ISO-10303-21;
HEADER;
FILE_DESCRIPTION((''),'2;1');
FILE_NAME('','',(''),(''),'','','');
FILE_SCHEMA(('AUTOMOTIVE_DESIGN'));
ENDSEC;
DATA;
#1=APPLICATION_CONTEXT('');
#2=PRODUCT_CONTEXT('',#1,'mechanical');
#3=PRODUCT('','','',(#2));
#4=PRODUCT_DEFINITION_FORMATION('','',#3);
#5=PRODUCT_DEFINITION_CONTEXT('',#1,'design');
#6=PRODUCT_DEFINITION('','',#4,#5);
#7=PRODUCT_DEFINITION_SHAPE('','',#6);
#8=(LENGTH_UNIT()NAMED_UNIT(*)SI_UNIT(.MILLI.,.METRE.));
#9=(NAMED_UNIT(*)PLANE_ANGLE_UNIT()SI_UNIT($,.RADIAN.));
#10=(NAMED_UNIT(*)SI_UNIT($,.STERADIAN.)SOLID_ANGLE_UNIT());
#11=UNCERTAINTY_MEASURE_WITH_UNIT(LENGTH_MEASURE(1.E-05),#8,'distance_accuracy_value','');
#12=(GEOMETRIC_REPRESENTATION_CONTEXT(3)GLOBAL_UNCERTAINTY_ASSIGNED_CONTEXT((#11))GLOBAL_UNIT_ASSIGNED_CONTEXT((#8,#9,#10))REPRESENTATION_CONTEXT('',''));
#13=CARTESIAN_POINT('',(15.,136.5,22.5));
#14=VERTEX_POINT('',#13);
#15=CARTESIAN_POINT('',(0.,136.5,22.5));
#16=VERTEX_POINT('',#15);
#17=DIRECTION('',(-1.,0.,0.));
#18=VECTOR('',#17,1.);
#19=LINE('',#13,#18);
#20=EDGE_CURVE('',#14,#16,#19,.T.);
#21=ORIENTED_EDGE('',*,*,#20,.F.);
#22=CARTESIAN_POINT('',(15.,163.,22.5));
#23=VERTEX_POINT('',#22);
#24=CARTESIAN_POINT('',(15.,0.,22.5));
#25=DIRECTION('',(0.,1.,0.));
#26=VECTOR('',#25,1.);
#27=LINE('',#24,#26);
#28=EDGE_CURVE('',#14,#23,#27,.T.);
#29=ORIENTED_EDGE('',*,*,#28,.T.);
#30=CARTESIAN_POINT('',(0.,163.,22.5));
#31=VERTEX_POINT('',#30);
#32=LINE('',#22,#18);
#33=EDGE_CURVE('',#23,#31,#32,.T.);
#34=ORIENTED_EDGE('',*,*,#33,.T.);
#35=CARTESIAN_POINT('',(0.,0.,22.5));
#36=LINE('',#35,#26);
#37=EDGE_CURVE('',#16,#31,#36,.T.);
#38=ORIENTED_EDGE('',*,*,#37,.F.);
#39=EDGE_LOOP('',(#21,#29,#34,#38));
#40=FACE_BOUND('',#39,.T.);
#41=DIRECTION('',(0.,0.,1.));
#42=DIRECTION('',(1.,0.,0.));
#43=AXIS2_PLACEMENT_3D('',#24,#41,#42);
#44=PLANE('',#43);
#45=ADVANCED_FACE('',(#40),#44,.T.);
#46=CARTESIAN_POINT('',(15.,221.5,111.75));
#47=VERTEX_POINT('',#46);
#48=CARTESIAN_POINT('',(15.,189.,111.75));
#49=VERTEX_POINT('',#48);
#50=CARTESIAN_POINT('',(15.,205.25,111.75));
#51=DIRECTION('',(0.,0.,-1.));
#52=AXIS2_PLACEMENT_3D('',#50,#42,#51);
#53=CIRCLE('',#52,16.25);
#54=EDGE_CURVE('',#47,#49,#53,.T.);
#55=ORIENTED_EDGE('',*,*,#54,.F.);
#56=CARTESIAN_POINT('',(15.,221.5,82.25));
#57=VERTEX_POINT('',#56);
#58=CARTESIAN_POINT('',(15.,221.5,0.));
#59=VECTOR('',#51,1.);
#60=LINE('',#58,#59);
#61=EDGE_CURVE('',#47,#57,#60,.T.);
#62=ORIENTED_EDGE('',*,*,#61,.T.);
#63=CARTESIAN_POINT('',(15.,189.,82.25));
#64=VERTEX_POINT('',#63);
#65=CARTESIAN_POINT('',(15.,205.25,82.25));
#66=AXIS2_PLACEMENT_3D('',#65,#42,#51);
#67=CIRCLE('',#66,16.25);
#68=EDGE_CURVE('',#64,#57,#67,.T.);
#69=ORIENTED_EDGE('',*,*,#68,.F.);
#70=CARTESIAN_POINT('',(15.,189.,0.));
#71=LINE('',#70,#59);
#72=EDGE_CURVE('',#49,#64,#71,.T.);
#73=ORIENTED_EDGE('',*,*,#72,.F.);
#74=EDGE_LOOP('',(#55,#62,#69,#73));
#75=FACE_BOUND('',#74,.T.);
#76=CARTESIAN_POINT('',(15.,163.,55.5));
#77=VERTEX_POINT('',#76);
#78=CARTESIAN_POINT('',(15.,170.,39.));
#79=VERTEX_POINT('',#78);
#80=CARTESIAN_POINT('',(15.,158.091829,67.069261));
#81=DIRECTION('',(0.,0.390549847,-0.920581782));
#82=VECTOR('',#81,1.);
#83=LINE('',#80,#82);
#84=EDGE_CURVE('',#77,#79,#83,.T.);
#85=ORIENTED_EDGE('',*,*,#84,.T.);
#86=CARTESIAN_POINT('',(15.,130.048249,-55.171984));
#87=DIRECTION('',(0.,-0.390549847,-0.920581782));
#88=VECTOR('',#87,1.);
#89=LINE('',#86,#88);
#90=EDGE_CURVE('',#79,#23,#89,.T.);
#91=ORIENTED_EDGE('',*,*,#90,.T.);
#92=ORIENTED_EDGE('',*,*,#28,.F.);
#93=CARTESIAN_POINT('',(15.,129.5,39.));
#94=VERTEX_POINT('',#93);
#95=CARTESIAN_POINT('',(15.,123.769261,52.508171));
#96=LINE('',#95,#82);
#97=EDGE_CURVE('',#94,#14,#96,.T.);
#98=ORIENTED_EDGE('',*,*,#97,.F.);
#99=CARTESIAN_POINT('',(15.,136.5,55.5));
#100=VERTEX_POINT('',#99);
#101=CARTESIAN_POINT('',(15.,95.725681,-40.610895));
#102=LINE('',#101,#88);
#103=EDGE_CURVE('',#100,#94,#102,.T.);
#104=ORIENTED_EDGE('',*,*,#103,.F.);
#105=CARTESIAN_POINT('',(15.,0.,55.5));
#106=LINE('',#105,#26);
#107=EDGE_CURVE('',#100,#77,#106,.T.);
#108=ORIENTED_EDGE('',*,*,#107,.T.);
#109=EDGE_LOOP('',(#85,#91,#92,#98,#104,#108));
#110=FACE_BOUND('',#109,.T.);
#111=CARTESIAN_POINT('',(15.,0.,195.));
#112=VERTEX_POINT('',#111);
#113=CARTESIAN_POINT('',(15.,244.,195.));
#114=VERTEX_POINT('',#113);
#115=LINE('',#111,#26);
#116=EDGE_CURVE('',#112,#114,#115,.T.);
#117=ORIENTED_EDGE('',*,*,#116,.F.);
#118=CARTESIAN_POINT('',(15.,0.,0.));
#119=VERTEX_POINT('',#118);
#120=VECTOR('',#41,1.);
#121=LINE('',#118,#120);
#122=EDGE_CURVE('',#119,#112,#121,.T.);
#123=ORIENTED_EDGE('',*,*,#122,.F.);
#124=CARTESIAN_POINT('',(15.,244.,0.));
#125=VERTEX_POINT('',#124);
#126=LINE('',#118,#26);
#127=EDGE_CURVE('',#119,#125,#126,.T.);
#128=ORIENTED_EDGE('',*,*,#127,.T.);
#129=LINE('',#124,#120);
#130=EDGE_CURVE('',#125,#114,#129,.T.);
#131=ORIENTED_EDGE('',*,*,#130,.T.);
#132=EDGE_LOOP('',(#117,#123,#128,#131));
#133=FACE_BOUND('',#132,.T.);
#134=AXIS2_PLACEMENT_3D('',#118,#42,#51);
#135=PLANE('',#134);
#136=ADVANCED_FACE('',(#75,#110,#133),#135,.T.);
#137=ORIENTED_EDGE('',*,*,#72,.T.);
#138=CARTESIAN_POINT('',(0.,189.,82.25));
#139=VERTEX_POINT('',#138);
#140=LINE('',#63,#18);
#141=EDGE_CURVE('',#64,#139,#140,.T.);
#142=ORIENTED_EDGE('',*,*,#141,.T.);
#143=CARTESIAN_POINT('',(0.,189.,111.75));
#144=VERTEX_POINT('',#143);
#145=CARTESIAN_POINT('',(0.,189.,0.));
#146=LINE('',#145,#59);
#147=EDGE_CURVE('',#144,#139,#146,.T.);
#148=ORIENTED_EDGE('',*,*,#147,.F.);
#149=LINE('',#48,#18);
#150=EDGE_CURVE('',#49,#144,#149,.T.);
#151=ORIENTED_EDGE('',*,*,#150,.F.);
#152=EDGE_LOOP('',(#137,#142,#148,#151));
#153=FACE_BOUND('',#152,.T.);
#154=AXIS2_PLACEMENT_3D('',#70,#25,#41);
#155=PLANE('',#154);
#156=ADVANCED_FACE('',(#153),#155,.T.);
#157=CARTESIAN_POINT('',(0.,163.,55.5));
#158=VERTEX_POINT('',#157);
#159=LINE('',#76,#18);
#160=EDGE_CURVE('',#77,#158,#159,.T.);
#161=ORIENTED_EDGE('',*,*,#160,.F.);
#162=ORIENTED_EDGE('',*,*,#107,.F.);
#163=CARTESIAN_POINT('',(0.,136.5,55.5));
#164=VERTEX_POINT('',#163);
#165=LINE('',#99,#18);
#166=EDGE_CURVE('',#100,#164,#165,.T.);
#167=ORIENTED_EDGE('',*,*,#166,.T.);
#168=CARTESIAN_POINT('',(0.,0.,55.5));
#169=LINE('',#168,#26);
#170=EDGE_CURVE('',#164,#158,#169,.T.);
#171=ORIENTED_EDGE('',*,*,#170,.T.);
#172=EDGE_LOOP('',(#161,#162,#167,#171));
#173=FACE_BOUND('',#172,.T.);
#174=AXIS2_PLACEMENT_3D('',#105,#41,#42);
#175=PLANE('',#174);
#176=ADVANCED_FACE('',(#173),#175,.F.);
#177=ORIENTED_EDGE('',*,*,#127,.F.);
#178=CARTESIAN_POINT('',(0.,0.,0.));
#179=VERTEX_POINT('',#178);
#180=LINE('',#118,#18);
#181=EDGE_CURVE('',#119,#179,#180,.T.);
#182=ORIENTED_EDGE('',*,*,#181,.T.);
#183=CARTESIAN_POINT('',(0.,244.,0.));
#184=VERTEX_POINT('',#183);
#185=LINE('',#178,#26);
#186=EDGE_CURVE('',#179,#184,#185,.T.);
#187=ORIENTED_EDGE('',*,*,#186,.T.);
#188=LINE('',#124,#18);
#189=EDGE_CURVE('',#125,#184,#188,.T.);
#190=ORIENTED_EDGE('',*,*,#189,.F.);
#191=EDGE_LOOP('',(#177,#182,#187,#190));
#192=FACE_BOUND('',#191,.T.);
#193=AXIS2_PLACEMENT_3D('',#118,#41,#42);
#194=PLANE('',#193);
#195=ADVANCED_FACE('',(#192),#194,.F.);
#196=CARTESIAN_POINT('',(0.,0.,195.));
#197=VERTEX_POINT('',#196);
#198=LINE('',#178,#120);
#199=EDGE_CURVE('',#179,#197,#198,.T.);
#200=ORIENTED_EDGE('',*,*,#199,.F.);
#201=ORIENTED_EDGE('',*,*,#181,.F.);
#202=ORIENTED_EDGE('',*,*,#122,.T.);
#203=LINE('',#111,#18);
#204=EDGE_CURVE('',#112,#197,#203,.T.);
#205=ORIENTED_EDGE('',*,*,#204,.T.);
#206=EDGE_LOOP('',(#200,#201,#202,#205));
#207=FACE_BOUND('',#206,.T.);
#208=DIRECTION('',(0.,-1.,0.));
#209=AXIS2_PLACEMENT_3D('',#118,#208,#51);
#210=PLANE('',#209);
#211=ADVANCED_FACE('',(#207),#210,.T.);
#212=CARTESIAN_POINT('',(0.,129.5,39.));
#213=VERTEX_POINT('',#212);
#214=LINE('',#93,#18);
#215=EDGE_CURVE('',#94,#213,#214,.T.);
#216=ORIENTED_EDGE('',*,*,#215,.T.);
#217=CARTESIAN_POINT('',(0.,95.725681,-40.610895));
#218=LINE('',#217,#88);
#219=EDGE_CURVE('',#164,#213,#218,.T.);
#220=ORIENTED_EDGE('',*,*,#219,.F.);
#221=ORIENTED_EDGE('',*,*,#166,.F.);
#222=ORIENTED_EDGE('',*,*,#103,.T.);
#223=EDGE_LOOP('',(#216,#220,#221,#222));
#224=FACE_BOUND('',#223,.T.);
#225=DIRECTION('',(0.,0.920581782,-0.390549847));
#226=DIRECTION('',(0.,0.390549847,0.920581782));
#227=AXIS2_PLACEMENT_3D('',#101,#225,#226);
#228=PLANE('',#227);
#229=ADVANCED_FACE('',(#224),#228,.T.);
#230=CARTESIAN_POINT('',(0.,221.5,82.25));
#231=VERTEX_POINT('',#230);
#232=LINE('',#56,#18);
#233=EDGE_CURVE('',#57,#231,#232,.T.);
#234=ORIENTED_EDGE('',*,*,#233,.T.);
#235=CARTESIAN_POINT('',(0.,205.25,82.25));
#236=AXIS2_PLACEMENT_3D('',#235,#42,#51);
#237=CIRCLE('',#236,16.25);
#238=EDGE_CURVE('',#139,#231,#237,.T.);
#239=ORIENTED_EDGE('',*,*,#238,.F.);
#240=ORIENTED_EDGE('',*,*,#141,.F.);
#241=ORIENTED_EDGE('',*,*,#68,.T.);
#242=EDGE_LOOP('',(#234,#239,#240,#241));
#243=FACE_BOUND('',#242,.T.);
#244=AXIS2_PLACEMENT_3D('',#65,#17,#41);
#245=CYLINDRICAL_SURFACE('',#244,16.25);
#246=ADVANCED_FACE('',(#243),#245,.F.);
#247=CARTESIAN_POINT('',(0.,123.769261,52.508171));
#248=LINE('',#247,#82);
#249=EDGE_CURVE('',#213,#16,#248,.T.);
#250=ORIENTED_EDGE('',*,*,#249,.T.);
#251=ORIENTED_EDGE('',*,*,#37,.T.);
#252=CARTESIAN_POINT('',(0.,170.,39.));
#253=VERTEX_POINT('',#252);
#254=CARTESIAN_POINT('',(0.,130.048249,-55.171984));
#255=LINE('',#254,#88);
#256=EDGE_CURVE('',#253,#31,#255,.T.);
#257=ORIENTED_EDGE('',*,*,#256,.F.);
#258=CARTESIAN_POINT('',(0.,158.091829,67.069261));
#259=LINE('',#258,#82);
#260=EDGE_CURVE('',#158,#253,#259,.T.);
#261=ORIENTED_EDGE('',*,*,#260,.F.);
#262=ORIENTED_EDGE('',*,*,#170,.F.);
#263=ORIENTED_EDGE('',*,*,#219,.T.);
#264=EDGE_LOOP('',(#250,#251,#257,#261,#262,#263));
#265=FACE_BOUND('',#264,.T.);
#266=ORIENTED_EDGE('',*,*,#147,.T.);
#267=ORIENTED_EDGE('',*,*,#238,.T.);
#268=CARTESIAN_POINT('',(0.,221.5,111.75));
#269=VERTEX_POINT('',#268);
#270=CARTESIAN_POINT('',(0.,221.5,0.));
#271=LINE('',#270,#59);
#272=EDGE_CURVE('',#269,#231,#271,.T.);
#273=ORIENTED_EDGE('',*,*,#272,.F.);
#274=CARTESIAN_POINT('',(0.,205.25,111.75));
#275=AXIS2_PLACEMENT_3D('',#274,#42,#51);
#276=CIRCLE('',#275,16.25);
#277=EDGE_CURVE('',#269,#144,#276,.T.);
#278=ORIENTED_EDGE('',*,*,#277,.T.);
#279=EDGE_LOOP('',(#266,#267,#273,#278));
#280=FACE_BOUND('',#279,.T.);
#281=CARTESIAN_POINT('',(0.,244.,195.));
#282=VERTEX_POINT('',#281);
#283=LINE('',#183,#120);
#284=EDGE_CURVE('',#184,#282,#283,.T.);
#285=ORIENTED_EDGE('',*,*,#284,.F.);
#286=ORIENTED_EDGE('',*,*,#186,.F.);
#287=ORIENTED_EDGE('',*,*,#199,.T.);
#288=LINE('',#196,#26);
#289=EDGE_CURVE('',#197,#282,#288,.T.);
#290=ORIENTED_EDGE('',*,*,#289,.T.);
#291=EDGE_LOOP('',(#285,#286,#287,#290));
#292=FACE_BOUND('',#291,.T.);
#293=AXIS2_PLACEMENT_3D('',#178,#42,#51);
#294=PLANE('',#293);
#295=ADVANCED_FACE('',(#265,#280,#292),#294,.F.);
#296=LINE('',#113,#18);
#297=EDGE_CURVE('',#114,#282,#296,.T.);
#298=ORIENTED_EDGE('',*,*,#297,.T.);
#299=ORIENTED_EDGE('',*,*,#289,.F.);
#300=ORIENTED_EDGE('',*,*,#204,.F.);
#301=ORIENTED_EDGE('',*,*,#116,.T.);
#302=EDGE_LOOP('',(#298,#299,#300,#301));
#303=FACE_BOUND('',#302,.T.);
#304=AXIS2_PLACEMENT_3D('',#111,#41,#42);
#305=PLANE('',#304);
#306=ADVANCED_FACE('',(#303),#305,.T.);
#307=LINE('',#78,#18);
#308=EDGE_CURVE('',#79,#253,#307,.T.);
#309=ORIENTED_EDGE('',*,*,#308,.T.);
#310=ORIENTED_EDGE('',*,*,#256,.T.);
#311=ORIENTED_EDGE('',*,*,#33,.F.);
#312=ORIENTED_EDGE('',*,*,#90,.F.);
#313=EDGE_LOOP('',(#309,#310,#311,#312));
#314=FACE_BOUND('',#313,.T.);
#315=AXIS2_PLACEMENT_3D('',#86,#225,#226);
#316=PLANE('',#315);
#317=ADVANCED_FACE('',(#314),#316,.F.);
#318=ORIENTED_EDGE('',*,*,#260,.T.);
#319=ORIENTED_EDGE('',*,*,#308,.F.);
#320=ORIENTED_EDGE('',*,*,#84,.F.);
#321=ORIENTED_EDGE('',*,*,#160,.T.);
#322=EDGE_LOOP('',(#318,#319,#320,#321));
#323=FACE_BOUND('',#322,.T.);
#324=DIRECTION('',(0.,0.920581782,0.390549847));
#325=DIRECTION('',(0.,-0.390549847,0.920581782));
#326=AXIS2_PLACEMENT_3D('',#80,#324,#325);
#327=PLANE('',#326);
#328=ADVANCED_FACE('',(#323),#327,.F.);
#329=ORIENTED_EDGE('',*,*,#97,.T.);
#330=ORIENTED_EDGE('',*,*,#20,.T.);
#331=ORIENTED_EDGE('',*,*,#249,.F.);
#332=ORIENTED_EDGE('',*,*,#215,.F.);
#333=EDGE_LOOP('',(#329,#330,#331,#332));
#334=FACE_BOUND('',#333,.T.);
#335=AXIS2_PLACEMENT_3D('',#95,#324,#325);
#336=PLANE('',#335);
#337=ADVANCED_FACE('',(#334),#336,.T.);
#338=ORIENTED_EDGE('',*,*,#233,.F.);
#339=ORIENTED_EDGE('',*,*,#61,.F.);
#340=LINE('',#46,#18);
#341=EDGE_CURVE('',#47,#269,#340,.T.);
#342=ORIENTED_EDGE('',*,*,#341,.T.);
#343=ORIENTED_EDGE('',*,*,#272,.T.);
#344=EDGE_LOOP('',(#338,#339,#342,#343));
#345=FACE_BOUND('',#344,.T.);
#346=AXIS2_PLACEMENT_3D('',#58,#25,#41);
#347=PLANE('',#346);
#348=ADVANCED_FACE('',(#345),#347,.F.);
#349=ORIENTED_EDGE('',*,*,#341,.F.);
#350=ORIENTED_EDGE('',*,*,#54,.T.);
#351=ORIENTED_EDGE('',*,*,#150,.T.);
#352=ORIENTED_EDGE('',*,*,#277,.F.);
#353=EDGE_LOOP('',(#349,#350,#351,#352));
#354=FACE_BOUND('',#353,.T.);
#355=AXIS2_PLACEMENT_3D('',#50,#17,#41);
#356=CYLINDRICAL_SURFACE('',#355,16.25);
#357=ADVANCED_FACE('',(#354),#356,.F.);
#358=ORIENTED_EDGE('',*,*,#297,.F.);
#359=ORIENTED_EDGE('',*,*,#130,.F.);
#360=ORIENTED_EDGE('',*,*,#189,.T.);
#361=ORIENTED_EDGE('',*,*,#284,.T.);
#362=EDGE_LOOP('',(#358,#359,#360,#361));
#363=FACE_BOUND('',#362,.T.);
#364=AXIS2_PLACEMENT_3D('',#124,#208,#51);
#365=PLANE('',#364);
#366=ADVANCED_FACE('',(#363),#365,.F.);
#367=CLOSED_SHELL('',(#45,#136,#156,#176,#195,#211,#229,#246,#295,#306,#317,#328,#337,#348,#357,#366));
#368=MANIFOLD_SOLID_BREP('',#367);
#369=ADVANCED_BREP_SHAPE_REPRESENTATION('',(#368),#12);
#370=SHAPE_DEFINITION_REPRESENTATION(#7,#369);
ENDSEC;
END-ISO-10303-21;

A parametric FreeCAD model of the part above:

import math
import FreeCAD as App
import Part
import Sketcher
from FreeCAD import Vector


def add_polygon(sketch, points):
    """Adds a closed chain of lines whose ends are joined by coincident constraints."""
    first, n = sketch.GeometryCount, len(points)
    for a, b in zip(points, points[1:] + points[:1]):
        sketch.addGeometry(Part.LineSegment(App.Vector(*a, 0), App.Vector(*b, 0)), False)
    for i in range(n):
        sketch.addConstraint(Sketcher.Constraint("Coincident", first + i, 2, first + (i + 1) % n, 1))

doc = App.newDocument("Part")
body = doc.addObject("PartDesign::Body", "Body")

sketch1 = body.newObject("Sketcher::SketchObject", "Sketch")
sketch1.AttachmentSupport = (doc.getObject("YZ_Plane"), [""])
sketch1.MapMode = "FlatFace"
add_polygon(sketch1, [(0, 195), (0, 0), (244, 0), (244, 195)])
add_polygon(sketch1, [(169.668624, 38.218901), (163, 22.5), (136.5, 22.5), (129.831376, 38.2189), (129.5, 39), (129.831376, 39.7811), (136.5, 55.5), (163, 55.5), (169.668625, 39.781099), (170, 39)])
sketch1.addGeometry(Part.ArcOfCircle(Part.Circle(Vector(205.25, 82.25, 0), Vector(0, 0, 1), 16.25), math.radians(180), math.radians(360)), False)
sketch1.addGeometry(Part.LineSegment(Vector(189, 82.25, 0), Vector(189, 111.75, 0)), False)
sketch1.addGeometry(Part.ArcOfCircle(Part.Circle(Vector(205.25, 111.75, 0), Vector(0, 0, 1), 16.25), math.radians(0), math.radians(180)), False)
sketch1.addGeometry(Part.LineSegment(Vector(221.5, 111.75, 0), Vector(221.5, 82.25, 0)), False)
sketch1.addConstraint([
    Sketcher.Constraint("Tangent", 14, 1, 15, 1),
    Sketcher.Constraint("Tangent", 15, 2, 16, 2),
    Sketcher.Constraint("Tangent", 16, 1, 17, 1),
    Sketcher.Constraint("Tangent", 17, 2, 14, 2),
    Sketcher.Constraint("Vertical", 0),
    Sketcher.Constraint("Horizontal", 1),
    Sketcher.Constraint("Vertical", 2),
    Sketcher.Constraint("Horizontal", 3),
    Sketcher.Constraint("Horizontal", 5),
    Sketcher.Constraint("Horizontal", 10),
    Sketcher.Constraint("Vertical", 15),
    Sketcher.Constraint("Vertical", 17),
    Sketcher.Constraint("Coincident", 0, 2, -1, 1),
    Sketcher.Constraint("Parallel", 6, 7),
    Sketcher.Constraint("Parallel", 4, 8),
    Sketcher.Constraint("Parallel", 8, 9),
    Sketcher.Constraint("Parallel", 7, 11),
    Sketcher.Constraint("Parallel", 11, 12),
    Sketcher.Constraint("Parallel", 9, 13),
    Sketcher.Constraint("Horizontal", 8, 2, 11, 2),
    Sketcher.Constraint("Horizontal", 7, 2, 12, 2),
    Sketcher.Constraint("Horizontal", 6, 2, 13, 2),
    Sketcher.Constraint("Vertical", 6, 2, 8, 2),
    Sketcher.Constraint("Vertical", 5, 2, 9, 2),
    Sketcher.Constraint("Vertical", 4, 2, 10, 2),
    Sketcher.Constraint("DistanceX", 1, 1, 1, 2, 244.0),
    Sketcher.Constraint("DistanceY", 0, 2, 0, 1, 195.0),
    Sketcher.Constraint("Radius", 14, 16.25),
    Sketcher.Constraint("DistanceX", 5, 2, 5, 1, 26.5),
    Sketcher.Constraint("DistanceY", 15, 1, 15, 2, 29.5),
    Sketcher.Constraint("DistanceX", -1, 1, 4, 2, 163.0),
    Sketcher.Constraint("DistanceY", -1, 1, 7, 2, 39.0),
    Sketcher.Constraint("DistanceX", -1, 1, 12, 2, 170.0),
    Sketcher.Constraint("DistanceX", -1, 1, 14, 1, 189.0),
    Sketcher.Constraint("DistanceY", 5, 2, 9, 2, 33.0),
    Sketcher.Constraint("DistanceY", -1, 1, 14, 3, 82.25),
    Sketcher.Constraint("DistanceY", -1, 1, 6, 2, 38.2189),
])
pad1 = body.newObject("PartDesign::Pad", "Pad")
pad1.Profile = sketch1
pad1.Length = 15

doc.recompute()
